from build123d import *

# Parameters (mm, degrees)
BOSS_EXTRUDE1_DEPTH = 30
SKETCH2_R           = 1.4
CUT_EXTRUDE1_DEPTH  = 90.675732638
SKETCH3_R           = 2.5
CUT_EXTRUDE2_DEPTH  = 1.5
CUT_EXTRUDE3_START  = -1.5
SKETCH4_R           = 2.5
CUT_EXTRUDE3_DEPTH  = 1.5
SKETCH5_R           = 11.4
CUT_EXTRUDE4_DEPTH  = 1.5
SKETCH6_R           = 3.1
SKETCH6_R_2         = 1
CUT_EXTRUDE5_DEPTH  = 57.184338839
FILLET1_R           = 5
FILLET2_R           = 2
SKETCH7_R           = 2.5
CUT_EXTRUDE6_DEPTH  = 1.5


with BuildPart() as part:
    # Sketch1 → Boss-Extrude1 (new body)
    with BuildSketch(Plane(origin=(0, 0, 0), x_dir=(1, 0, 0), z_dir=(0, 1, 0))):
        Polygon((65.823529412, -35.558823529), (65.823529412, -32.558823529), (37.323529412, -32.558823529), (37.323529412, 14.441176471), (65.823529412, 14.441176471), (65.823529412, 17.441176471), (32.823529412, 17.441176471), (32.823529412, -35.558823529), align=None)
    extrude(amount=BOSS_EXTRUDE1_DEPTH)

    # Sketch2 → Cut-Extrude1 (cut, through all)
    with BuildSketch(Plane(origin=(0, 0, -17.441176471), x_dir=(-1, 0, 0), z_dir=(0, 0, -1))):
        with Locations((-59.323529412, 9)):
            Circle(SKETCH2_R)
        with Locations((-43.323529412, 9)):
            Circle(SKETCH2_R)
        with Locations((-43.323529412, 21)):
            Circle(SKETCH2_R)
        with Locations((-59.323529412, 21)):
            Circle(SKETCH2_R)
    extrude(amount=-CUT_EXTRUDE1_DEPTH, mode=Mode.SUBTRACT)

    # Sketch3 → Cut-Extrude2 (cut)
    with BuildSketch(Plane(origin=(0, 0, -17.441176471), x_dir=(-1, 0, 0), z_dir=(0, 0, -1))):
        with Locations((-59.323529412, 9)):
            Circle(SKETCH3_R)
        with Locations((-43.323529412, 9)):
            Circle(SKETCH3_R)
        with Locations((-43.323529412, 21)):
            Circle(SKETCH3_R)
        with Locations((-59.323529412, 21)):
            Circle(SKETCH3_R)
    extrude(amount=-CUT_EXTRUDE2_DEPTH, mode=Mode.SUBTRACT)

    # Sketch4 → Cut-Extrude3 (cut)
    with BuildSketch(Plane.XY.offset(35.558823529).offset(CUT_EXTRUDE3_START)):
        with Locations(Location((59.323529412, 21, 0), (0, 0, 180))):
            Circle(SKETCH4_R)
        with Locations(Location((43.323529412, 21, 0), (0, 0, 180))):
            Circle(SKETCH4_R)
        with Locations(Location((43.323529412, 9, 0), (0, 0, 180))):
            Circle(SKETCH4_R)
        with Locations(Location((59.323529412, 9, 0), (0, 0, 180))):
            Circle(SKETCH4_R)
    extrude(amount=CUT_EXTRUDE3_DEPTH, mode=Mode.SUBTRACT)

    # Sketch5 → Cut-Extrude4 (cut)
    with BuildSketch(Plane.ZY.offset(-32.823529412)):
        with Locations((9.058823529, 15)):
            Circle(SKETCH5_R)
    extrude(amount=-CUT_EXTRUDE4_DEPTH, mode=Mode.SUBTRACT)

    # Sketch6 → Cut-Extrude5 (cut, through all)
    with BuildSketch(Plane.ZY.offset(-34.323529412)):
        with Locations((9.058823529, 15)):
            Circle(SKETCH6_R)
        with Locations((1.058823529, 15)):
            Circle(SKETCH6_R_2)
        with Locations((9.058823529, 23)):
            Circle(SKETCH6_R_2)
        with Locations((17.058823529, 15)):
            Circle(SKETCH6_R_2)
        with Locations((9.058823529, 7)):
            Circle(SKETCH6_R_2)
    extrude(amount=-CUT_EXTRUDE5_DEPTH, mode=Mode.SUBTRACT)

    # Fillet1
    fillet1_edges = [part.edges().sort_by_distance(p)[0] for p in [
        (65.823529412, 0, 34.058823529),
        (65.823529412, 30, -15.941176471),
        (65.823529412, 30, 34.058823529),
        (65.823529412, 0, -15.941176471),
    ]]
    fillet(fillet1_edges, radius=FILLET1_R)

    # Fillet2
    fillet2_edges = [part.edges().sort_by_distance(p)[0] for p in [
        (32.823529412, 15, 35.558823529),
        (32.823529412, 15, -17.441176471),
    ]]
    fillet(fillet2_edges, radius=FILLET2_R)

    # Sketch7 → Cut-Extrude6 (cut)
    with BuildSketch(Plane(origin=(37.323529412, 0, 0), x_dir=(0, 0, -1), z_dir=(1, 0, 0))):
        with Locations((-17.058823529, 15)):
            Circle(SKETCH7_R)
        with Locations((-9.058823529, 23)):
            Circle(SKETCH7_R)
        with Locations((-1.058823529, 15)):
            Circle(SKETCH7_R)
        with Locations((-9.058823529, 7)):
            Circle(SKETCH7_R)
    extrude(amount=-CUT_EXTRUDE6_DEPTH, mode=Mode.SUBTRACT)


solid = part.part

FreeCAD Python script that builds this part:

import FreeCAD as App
import Part
import Sketcher

V = App.Vector
Q = App.Units.Quantity


def edges_at(feature, points):
    """Names of the edges that pass closest to the given points."""
    edges = feature.Shape.Edges
    near = lambda p: min(range(len(edges)), key=lambda i: edges[i].distToShape(Part.Vertex(*p))[0])
    return sorted({f"Edge{near(p) + 1}" for p in points})

doc = App.newDocument("Part")
body = doc.addObject("PartDesign::Body", "Body")

# Sketch on XZ plane
sketch1 = body.newObject("Sketcher::SketchObject", "Sketch")
sketch1.AttachmentSupport = (doc.getObject("XZ_Plane"), [""])
sketch1.MapMode = "FlatFace"
sketch1.addGeometry([
    Part.LineSegment(V(65.823529, 35.558824, 0), V(65.823529, 32.558824, 0)),  # 0
    Part.LineSegment(V(65.823529, 32.558824, 0), V(37.323529, 32.558824, 0)),  # 1
    Part.LineSegment(V(37.323529, 32.558824, 0), V(37.323529, -14.441176, 0)),  # 2
    Part.LineSegment(V(37.323529, -14.441176, 0), V(65.823529, -14.441176, 0)),  # 3
    Part.LineSegment(V(65.823529, -14.441176, 0), V(65.823529, -17.441176, 0)),  # 4
    Part.LineSegment(V(65.823529, -17.441176, 0), V(32.823529, -17.441176, 0)),  # 5
    Part.LineSegment(V(32.823529, -17.441176, 0), V(32.823529, 35.558824, 0)),  # 6
    Part.LineSegment(V(32.823529, 35.558824, 0), V(65.823529, 35.558824, 0)),  # 7
], False)
sketch1.addConstraint([
    Sketcher.Constraint("Coincident", 0, 2, 1, 1),
    Sketcher.Constraint("Coincident", 1, 2, 2, 1),
    Sketcher.Constraint("Coincident", 2, 2, 3, 1),
    Sketcher.Constraint("Coincident", 3, 2, 4, 1),
    Sketcher.Constraint("Coincident", 4, 2, 5, 1),
    Sketcher.Constraint("Coincident", 5, 2, 6, 1),
    Sketcher.Constraint("Coincident", 6, 2, 7, 1),
    Sketcher.Constraint("Coincident", 7, 2, 0, 1),
    Sketcher.Constraint("Vertical", 0),
    Sketcher.Constraint("Horizontal", 1),
    Sketcher.Constraint("Vertical", 2),
    Sketcher.Constraint("Horizontal", 3),
    Sketcher.Constraint("Vertical", 4),
    Sketcher.Constraint("Horizontal", 5),
    Sketcher.Constraint("Vertical", 6),
    Sketcher.Constraint("Horizontal", 7),
    Sketcher.Constraint("Vertical", 0, 2, 3, 2),
    Sketcher.Constraint("Equal", 0, 4),
    Sketcher.Constraint("DistanceX", 5, 2, 5, 1, Q("33 mm")),
    Sketcher.Constraint("DistanceY", 0, 2, 0, 1, Q("3 mm")),
    Sketcher.Constraint("DistanceY", 2, 2, 2, 1, Q("47 mm")),
    Sketcher.Constraint("DistanceX", 1, 2, 1, 1, Q("28.5 mm")),
    Sketcher.Constraint("DistanceX", -1, 1, 0, 2, Q("65.823529 mm")),
    Sketcher.Constraint("DistanceY", -1, 1, 0, 2, Q("32.558824 mm")),
])
pad1 = body.newObject("PartDesign::Pad", "Pad")
pad1.Profile = sketch1
pad1.Length = 30
pad1.Reversed = True

# Sketch on XY plane
sketch2 = body.newObject("Sketcher::SketchObject", "Sketch001")
sketch2.AttachmentSupport = (doc.getObject("XY_Plane"), [""])
sketch2.MapMode = "FlatFace"
sketch2.AttachmentOffset = App.Placement(V(0, 0, -17.441176), App.Rotation())
sketch2.addGeometry([
    Part.Circle(V(59.323529, 9, 0), V(0, 0, 1), 1.4),
    Part.Circle(V(43.323529, 9, 0), V(0, 0, 1), 1.4),
    Part.Circle(V(43.323529, 21, 0), V(0, 0, 1), 1.4),
    Part.Circle(V(59.323529, 21, 0), V(0, 0, 1), 1.4),
], False)
sketch2.addConstraint([
    Sketcher.Constraint("Equal", 0, 1),
    Sketcher.Constraint("Equal", 1, 2),
    Sketcher.Constraint("Equal", 2, 3),
    Sketcher.Constraint("Horizontal", 0, 3, 1, 3),
    Sketcher.Constraint("Horizontal", 2, 3, 3, 3),
    Sketcher.Constraint("Vertical", 1, 3, 2, 3),
    Sketcher.Constraint("Vertical", 0, 3, 3, 3),
    Sketcher.Constraint("Diameter", 0, Q("2.8 mm")),
    Sketcher.Constraint("DistanceY", -1, 1, 0, 3, Q("9 mm")),
    Sketcher.Constraint("DistanceY", -1, 1, 2, 3, Q("21 mm")),
    Sketcher.Constraint("DistanceX", 1, 3, 0, 3, Q("16 mm")),
    Sketcher.Constraint("DistanceX", -1, 1, 0, 3, Q("59.323529 mm")),
])
pocket1 = body.newObject("PartDesign::Pocket", "Pocket")
pocket1.Profile = sketch2
pocket1.Type = "ThroughAll"
pocket1.Reversed = True

# Sketch on XY plane
sketch3 = body.newObject("Sketcher::SketchObject", "Sketch002")
sketch3.AttachmentSupport = (doc.getObject("XY_Plane"), [""])
sketch3.MapMode = "FlatFace"
sketch3.AttachmentOffset = App.Placement(V(0, 0, -17.441176), App.Rotation())
sketch3.addGeometry([
    Part.Circle(V(59.323529, 9, 0), V(0, 0, 1), 2.5),
    Part.Circle(V(43.323529, 9, 0), V(0, 0, 1), 2.5),
    Part.Circle(V(43.323529, 21, 0), V(0, 0, 1), 2.5),
    Part.Circle(V(59.323529, 21, 0), V(0, 0, 1), 2.5),
], False)
sketch3.addConstraint([
    Sketcher.Constraint("Equal", 0, 1),
    Sketcher.Constraint("Equal", 1, 2),
    Sketcher.Constraint("Equal", 2, 3),
    Sketcher.Constraint("Horizontal", 0, 3, 1, 3),
    Sketcher.Constraint("Horizontal", 2, 3, 3, 3),
    Sketcher.Constraint("Vertical", 1, 3, 2, 3),
    Sketcher.Constraint("Vertical", 0, 3, 3, 3),
    Sketcher.Constraint("Diameter", 0, Q("5 mm")),
    Sketcher.Constraint("DistanceY", -1, 1, 0, 3, Q("9 mm")),
    Sketcher.Constraint("DistanceY", -1, 1, 2, 3, Q("21 mm")),
    Sketcher.Constraint("DistanceX", 1, 3, 0, 3, Q("16 mm")),
    Sketcher.Constraint("DistanceX", -1, 1, 0, 3, Q("59.323529 mm")),
])
pocket2 = body.newObject("PartDesign::Pocket", "Pocket001")
pocket2.Profile = sketch3
pocket2.Length = 1.5
pocket2.Reversed = True

# Sketch on XY plane
sketch4 = body.newObject("Sketcher::SketchObject", "Sketch003")
sketch4.AttachmentSupport = (doc.getObject("XY_Plane"), [""])
sketch4.MapMode = "FlatFace"
sketch4.AttachmentOffset = App.Placement(V(0, 0, 34.058824), App.Rotation())
sketch4.addGeometry([
    Part.Circle(V(59.323529, 21, 0), V(0, 0, 1), 2.5),
    Part.Circle(V(43.323529, 21, 0), V(0, 0, 1), 2.5),
    Part.Circle(V(43.323529, 9, 0), V(0, 0, 1), 2.5),
    Part.Circle(V(59.323529, 9, 0), V(0, 0, 1), 2.5),
], False)
sketch4.addConstraint([
    Sketcher.Constraint("Equal", 0, 1),
    Sketcher.Constraint("Equal", 1, 2),
    Sketcher.Constraint("Equal", 2, 3),
    Sketcher.Constraint("Horizontal", 0, 3, 1, 3),
    Sketcher.Constraint("Horizontal", 2, 3, 3, 3),
    Sketcher.Constraint("Vertical", 1, 3, 2, 3),
    Sketcher.Constraint("Vertical", 0, 3, 3, 3),
    Sketcher.Constraint("Diameter", 0, Q("5 mm")),
    Sketcher.Constraint("DistanceY", -1, 1, 0, 3, Q("21 mm")),
    Sketcher.Constraint("DistanceY", -1, 1, 2, 3, Q("9 mm")),
    Sketcher.Constraint("DistanceX", 1, 3, 0, 3, Q("16 mm")),
    Sketcher.Constraint("DistanceX", -1, 1, 0, 3, Q("59.323529 mm")),
])
pocket3 = body.newObject("PartDesign::Pocket", "Pocket002")
pocket3.Profile = sketch4
pocket3.Length = 1.5
pocket3.Reversed = True

# Sketch on YZ plane
sketch5 = body.newObject("Sketcher::SketchObject", "Sketch004")
sketch5.AttachmentSupport = (doc.getObject("YZ_Plane"), [""])
sketch5.MapMode = "FlatFace"
sketch5.AttachmentOffset = App.Placement(V(0, 0, 32.823529), App.Rotation())
sketch5.addGeometry(Part.Circle(V(15, 9.058824, 0), V(0, 0, 1), 11.4), False)
sketch5.addConstraint([
    Sketcher.Constraint("Diameter", 0, Q("22.8 mm")),
    Sketcher.Constraint("DistanceX", -1, 1, 0, 3, Q("15 mm")),
    Sketcher.Constraint("DistanceY", -1, 1, 0, 3, Q("9.058824 mm")),
])
pocket4 = body.newObject("PartDesign::Pocket", "Pocket003")
pocket4.Profile = sketch5
pocket4.Length = 1.5
pocket4.Reversed = True

# Sketch on YZ plane
sketch6 = body.newObject("Sketcher::SketchObject", "Sketch005")
sketch6.AttachmentSupport = (doc.getObject("YZ_Plane"), [""])
sketch6.MapMode = "FlatFace"
sketch6.AttachmentOffset = App.Placement(V(0, 0, 34.323529), App.Rotation())
sketch6.addGeometry([
    Part.Circle(V(15, 9.058824, 0), V(0, 0, 1), 3.1),  # 0
    Part.Circle(V(15, 1.058824, 0), V(0, 0, 1), 1),  # 1
    Part.Circle(V(23, 9.058824, 0), V(0, 0, 1), 1),  # 2
    Part.Circle(V(15, 17.058824, 0), V(0, 0, 1), 1),  # 3
    Part.Circle(V(7, 9.058824, 0), V(0, 0, 1), 1),  # 4
], False)
sketch6.addConstraint([
    Sketcher.Constraint("Equal", 1, 2),
    Sketcher.Constraint("Equal", 2, 3),
    Sketcher.Constraint("Equal", 3, 4),
    Sketcher.Constraint("Horizontal", 0, 3, 2, 3),
    Sketcher.Constraint("Horizontal", 2, 3, 4, 3),
    Sketcher.Constraint("Vertical", 0, 3, 1, 3),
    Sketcher.Constraint("Vertical", 1, 3, 3, 3),
    Sketcher.Constraint("Diameter", 1, Q("2 mm")),
    Sketcher.Constraint("Diameter", 0, Q("6.2 mm")),
    Sketcher.Constraint("DistanceX", -1, 1, 0, 3, Q("15 mm")),
    Sketcher.Constraint("DistanceX", -1, 1, 2, 3, Q("23 mm")),
    Sketcher.Constraint("DistanceX", -1, 1, 4, 3, Q("7 mm")),
    Sketcher.Constraint("DistanceY", 1, 3, 0, 3, Q("8 mm")),
    Sketcher.Constraint("DistanceY", 0, 3, 3, 3, Q("8 mm")),
    Sketcher.Constraint("DistanceY", -1, 1, 0, 3, Q("9.058824 mm")),
])
pocket5 = body.newObject("PartDesign::Pocket", "Pocket004")
pocket5.Profile = sketch6
pocket5.Type = "ThroughAll"
pocket5.Reversed = True
doc.recompute()

fillet = body.newObject("PartDesign::Fillet", "Fillet")
fillet.Base = (pocket5, edges_at(pocket5, [
    (65.824, 0, 34.059),
    (65.824, 30, -15.941),
    (65.824, 30, 34.059),
    (65.824, 0, -15.941),
]))
fillet.Radius = 5
doc.recompute()

fillet2 = body.newObject("PartDesign::Fillet", "Fillet001")
fillet2.Base = (fillet, edges_at(fillet, [(32.824, 15, 35.559), (32.824, 15, -17.441)]))
fillet2.Radius = 2

# Sketch on YZ plane
sketch7 = body.newObject("Sketcher::SketchObject", "Sketch006")
sketch7.AttachmentSupport = (doc.getObject("YZ_Plane"), [""])
sketch7.MapMode = "FlatFace"
sketch7.AttachmentOffset = App.Placement(V(0, 0, 37.323529), App.Rotation())
sketch7.addGeometry([
    Part.Circle(V(15, 17.058824, 0), V(0, 0, 1), 2.5),
    Part.Circle(V(23, 9.058824, 0), V(0, 0, 1), 2.5),
    Part.Circle(V(15, 1.058824, 0), V(0, 0, 1), 2.5),
    Part.Circle(V(7, 9.058824, 0), V(0, 0, 1), 2.5),
], False)
sketch7.addConstraint([
    Sketcher.Constraint("Equal", 0, 1),
    Sketcher.Constraint("Equal", 1, 2),
    Sketcher.Constraint("Equal", 2, 3),
    Sketcher.Constraint("Horizontal", 1, 3, 3, 3),
    Sketcher.Constraint("Vertical", 0, 3, 2, 3),
    Sketcher.Constraint("Diameter", 0, Q("5 mm")),
    Sketcher.Constraint("DistanceX", -1, 1, 0, 3, Q("15 mm")),
    Sketcher.Constraint("DistanceX", -1, 1, 1, 3, Q("23 mm")),
    Sketcher.Constraint("DistanceX", -1, 1, 3, 3, Q("7 mm")),
    Sketcher.Constraint("DistanceY", 1, 3, 0, 3, Q("8 mm")),
    Sketcher.Constraint("DistanceY", 2, 3, 1, 3, Q("8 mm")),
    Sketcher.Constraint("DistanceY", -1, 1, 0, 3, Q("17.058824 mm")),
])
pocket6 = body.newObject("PartDesign::Pocket", "Pocket005")
pocket6.Profile = sketch7
pocket6.Length = 1.5

doc.recompute()
